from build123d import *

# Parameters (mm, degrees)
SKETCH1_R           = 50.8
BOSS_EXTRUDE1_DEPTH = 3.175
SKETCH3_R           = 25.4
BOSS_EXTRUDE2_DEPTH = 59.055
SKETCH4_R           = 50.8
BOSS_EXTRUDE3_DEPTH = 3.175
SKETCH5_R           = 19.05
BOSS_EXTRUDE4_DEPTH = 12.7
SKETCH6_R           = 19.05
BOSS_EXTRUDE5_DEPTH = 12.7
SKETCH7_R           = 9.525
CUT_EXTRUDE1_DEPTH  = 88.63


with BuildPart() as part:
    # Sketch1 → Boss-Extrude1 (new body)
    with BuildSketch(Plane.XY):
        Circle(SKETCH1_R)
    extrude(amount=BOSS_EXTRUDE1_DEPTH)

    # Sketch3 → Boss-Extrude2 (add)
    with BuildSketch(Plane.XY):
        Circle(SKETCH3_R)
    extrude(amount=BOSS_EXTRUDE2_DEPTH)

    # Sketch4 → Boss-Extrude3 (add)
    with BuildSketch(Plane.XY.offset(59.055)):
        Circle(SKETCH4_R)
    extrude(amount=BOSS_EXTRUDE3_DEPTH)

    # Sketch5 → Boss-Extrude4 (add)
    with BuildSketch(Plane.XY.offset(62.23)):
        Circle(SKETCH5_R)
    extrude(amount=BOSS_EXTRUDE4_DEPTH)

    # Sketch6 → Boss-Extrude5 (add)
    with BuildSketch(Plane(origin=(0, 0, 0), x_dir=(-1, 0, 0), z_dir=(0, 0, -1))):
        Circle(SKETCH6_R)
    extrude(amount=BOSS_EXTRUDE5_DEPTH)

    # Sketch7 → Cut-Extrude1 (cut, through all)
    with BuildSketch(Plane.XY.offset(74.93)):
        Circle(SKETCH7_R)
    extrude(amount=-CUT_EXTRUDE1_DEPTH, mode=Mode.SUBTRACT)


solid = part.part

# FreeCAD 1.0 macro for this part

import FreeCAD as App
import Part
import Sketcher
from FreeCAD import Vector
Q = App.Units.Quantity

doc = App.newDocument("Part")
body = doc.addObject("PartDesign::Body", "Body")

# Sketch on XY plane
sketch1 = body.newObject("Sketcher::SketchObject", "Sketch")
sketch1.AttachmentSupport = (doc.getObject("XY_Plane"), [""])
sketch1.MapMode = "FlatFace"
sketch1.addGeometry(Part.Circle(Vector(0, 0, 0), Vector(0, 0, 1), 51), False)
sketch1.addConstraint([
    Sketcher.Constraint("Coincident", 0, 3, -1, 1),
    Sketcher.Constraint("Diameter", 0, Q("4 in")),
])
pad1 = body.newObject("PartDesign::Pad", "Pad")
pad1.Profile = sketch1
pad1.Length = Q("0.125 in")

# Sketch on XY plane
sketch2 = body.newObject("Sketcher::SketchObject", "Sketch001")
sketch2.AttachmentSupport = (doc.getObject("XY_Plane"), [""])
sketch2.MapMode = "FlatFace"
sketch2.addGeometry(Part.Circle(Vector(0, 0, 0), Vector(0, 0, 1), 25), False)
sketch2.addConstraint([
    Sketcher.Constraint("Coincident", 0, 3, -1, 1),
    Sketcher.Constraint("Diameter", 0, Q("2 in")),
])
pad2 = body.newObject("PartDesign::Pad", "Pad001")
pad2.Profile = sketch2
pad2.Length = Q("2.325 in")

# Sketch on XY plane
sketch3 = body.newObject("Sketcher::SketchObject", "Sketch002")
sketch3.AttachmentSupport = (doc.getObject("XY_Plane"), [""])
sketch3.MapMode = "FlatFace"
sketch3.AttachmentOffset = App.Placement(Vector(0, 0, 2.325 * 25.4), App.Rotation())
sketch3.addGeometry(Part.Circle(Vector(0, 0, 0), Vector(0, 0, 1), 51), False)
sketch3.addConstraint([
    Sketcher.Constraint("Coincident", 0, 3, -1, 1),
    Sketcher.Constraint("Diameter", 0, Q("4 in")),
])
pad3 = body.newObject("PartDesign::Pad", "Pad002")
pad3.Profile = sketch3
pad3.Length = Q("0.125 in")

# Sketch on XY plane
sketch4 = body.newObject("Sketcher::SketchObject", "Sketch003")
sketch4.AttachmentSupport = (doc.getObject("XY_Plane"), [""])
sketch4.MapMode = "FlatFace"
sketch4.AttachmentOffset = App.Placement(Vector(0, 0, 2.45 * 25.4), App.Rotation())
sketch4.addGeometry(Part.Circle(Vector(0, 0, 0), Vector(0, 0, 1), 19), False)
sketch4.addConstraint([
    Sketcher.Constraint("Coincident", 0, 3, -1, 1),
    Sketcher.Constraint("Diameter", 0, Q("1.5 in")),
])
pad4 = body.newObject("PartDesign::Pad", "Pad003")
pad4.Profile = sketch4
pad4.Length = Q("0.5 in")

# Sketch on XY plane
sketch5 = body.newObject("Sketcher::SketchObject", "Sketch004")
sketch5.AttachmentSupport = (doc.getObject("XY_Plane"), [""])
sketch5.MapMode = "FlatFace"
sketch5.addGeometry(Part.Circle(Vector(0, 0, 0), Vector(0, 0, 1), 19), False)
sketch5.addConstraint([
    Sketcher.Constraint("Coincident", 0, 3, -1, 1),
    Sketcher.Constraint("Diameter", 0, Q("1.5 in")),
])
pad5 = body.newObject("PartDesign::Pad", "Pad004")
pad5.Profile = sketch5
pad5.Length = Q("0.5 in")
pad5.Reversed = True

# Sketch on XY plane
sketch6 = body.newObject("Sketcher::SketchObject", "Sketch005")
sketch6.AttachmentSupport = (doc.getObject("XY_Plane"), [""])
sketch6.MapMode = "FlatFace"
sketch6.AttachmentOffset = App.Placement(Vector(0, 0, 2.95 * 25.4), App.Rotation())
sketch6.addGeometry(Part.Circle(Vector(0, 0, 0), Vector(0, 0, 1), 10), False)
sketch6.addConstraint([
    Sketcher.Constraint("Coincident", 0, 3, -1, 1),
    Sketcher.Constraint("Diameter", 0, Q("0.75 in")),
])
pocket1 = body.newObject("PartDesign::Pocket", "Pocket")
pocket1.Profile = sketch6
pocket1.Type = "ThroughAll"

doc.recompute()
